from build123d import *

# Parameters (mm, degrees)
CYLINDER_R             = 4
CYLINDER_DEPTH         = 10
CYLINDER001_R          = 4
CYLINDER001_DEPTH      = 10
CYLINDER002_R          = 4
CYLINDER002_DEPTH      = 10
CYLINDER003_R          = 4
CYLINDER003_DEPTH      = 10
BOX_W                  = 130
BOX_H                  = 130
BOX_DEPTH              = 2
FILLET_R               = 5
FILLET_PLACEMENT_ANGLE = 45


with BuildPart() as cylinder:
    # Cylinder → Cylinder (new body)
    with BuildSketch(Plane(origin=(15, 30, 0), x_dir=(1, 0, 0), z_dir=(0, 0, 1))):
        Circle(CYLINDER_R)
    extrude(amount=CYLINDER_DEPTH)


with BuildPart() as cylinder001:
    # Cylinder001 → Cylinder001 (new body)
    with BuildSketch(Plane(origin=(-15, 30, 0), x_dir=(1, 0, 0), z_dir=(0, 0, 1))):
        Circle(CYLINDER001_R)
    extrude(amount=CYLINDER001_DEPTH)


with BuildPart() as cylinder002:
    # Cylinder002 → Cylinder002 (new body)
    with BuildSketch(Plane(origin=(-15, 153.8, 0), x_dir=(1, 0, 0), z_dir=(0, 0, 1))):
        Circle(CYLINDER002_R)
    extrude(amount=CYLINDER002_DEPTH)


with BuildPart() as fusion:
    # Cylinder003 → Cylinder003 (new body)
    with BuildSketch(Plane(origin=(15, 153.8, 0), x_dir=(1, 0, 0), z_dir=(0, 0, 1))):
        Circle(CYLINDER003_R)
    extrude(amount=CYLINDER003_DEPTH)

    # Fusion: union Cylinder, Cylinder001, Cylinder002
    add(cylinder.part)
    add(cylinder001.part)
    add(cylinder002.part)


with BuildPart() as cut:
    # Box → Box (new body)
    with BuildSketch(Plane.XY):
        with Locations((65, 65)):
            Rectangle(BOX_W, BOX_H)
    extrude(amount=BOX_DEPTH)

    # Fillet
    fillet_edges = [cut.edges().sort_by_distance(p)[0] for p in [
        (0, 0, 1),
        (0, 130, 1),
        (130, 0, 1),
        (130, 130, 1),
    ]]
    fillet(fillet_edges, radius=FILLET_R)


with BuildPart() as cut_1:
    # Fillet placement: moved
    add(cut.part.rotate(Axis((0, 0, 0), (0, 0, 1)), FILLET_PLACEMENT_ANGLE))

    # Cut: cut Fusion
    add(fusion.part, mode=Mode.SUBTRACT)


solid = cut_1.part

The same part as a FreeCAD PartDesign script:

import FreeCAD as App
import Part
import Sketcher


def edges_at(feature, points):
    """Names of the edges that pass closest to the given points."""
    edges = feature.Shape.Edges
    near = lambda p: min(range(len(edges)), key=lambda i: edges[i].distToShape(Part.Vertex(*p))[0])
    return sorted({f"Edge{near(p) + 1}" for p in points})


def add_polygon(sketch, points):
    """Adds a closed chain of lines whose ends are joined by coincident constraints."""
    first, n = sketch.GeometryCount, len(points)
    for a, b in zip(points, points[1:] + points[:1]):
        sketch.addGeometry(Part.LineSegment(App.Vector(*a, 0), App.Vector(*b, 0)), False)
    for i in range(n):
        sketch.addConstraint(Sketcher.Constraint("Coincident", first + i, 2, first + (i + 1) % n, 1))

doc = App.newDocument("Part")
params = doc.addObject("Spreadsheet::Sheet", "Params")
for row, (alias, value) in enumerate([
    ("sketch1_diameter", "8 mm"),
    ("pad1_length", "10 mm"),
    ("sketch2_diameter", "8 mm"),
    ("pad2_length", "10 mm"),
    ("sketch3_diameter", "8 mm"),
    ("pad3_length", "10 mm"),
    ("sketch4_diameter", "8 mm"),
    ("pad4_length", "10 mm"),
    ("sketch5_width", "130 mm"),
    ("pad5_length", "2 mm"),
    ("fillet_radius", "5 mm"),
], start=1):
    params.set(f"A{row}", alias)
    params.set(f"B{row}", "=" + value)
    params.setAlias(f"B{row}", alias)

body = doc.addObject("PartDesign::Body", "Body")

# Sketch on XY plane
sketch1 = body.newObject("Sketcher::SketchObject", "Sketch")
sketch1.AttachmentSupport = (doc.getObject("XY_Plane"), [""])
sketch1.MapMode = "FlatFace"
sketch1.addGeometry(Part.Circle(App.Vector(15, 30, 0), App.Vector(0, 0, 1), 4), False)
sketch1.addConstraint([
    Sketcher.Constraint("Diameter", 0, 8.0),
    Sketcher.Constraint("DistanceX", -1, 1, 0, 3, 15.0),
    Sketcher.Constraint("DistanceY", -1, 1, 0, 3, 30.0),
])
sketch1.setExpression("Constraints[0]", "Params.sketch1_diameter")
pad1 = body.newObject("PartDesign::Pad", "Pad")
pad1.Profile = sketch1
pad1.setExpression("Length", "Params.pad1_length")
body2 = doc.addObject("PartDesign::Body", "Body001")

# Sketch on XY plane
sketch2 = body2.newObject("Sketcher::SketchObject", "Sketch001")
sketch2.AttachmentSupport = (doc.getObject("XY_Plane001"), [""])
sketch2.MapMode = "FlatFace"
sketch2.addGeometry(Part.Circle(App.Vector(-15, 30, 0), App.Vector(0, 0, 1), 4), False)
sketch2.addConstraint([
    Sketcher.Constraint("Diameter", 0, 8.0),
    Sketcher.Constraint("DistanceX", 0, 3, -1, 1, 15.0),
    Sketcher.Constraint("DistanceY", -1, 1, 0, 3, 30.0),
])
sketch2.setExpression("Constraints[0]", "Params.sketch2_diameter")
pad2 = body2.newObject("PartDesign::Pad", "Pad001")
pad2.Profile = sketch2
pad2.setExpression("Length", "Params.pad2_length")
body3 = doc.addObject("PartDesign::Body", "Body002")

# Sketch on XY plane
sketch3 = body3.newObject("Sketcher::SketchObject", "Sketch002")
sketch3.AttachmentSupport = (doc.getObject("XY_Plane002"), [""])
sketch3.MapMode = "FlatFace"
sketch3.addGeometry(Part.Circle(App.Vector(-15, 153.8, 0), App.Vector(0, 0, 1), 4), False)
sketch3.addConstraint([
    Sketcher.Constraint("Diameter", 0, 8.0),
    Sketcher.Constraint("DistanceX", 0, 3, -1, 1, 15.0),
    Sketcher.Constraint("DistanceY", -1, 1, 0, 3, 153.8),
])
sketch3.setExpression("Constraints[0]", "Params.sketch3_diameter")
pad3 = body3.newObject("PartDesign::Pad", "Pad002")
pad3.Profile = sketch3
pad3.setExpression("Length", "Params.pad3_length")
body4 = doc.addObject("PartDesign::Body", "Body003")
body4.AllowCompound = True

# Sketch on XY plane
sketch4 = body4.newObject("Sketcher::SketchObject", "Sketch003")
sketch4.AttachmentSupport = (doc.getObject("XY_Plane003"), [""])
sketch4.MapMode = "FlatFace"
sketch4.addGeometry(Part.Circle(App.Vector(15, 153.8, 0), App.Vector(0, 0, 1), 4), False)
sketch4.addConstraint([
    Sketcher.Constraint("Diameter", 0, 8.0),
    Sketcher.Constraint("DistanceX", -1, 1, 0, 3, 15.0),
    Sketcher.Constraint("DistanceY", -1, 1, 0, 3, 153.8),
])
sketch4.setExpression("Constraints[0]", "Params.sketch4_diameter")
pad4 = body4.newObject("PartDesign::Pad", "Pad003")
pad4.Profile = sketch4
pad4.setExpression("Length", "Params.pad4_length")
doc.recompute()

boolean = body4.newObject("PartDesign::Boolean", "Boolean")
boolean.Type = "Fuse"
boolean.addObjects([body])
doc.recompute()

boolean2 = body4.newObject("PartDesign::Boolean", "Boolean001")
boolean2.Type = "Fuse"
boolean2.addObjects([body2])
doc.recompute()

boolean3 = body4.newObject("PartDesign::Boolean", "Boolean002")
boolean3.Type = "Fuse"
boolean3.addObjects([body3])
body5 = doc.addObject("PartDesign::Body", "Body004")

# Sketch on XY plane
sketch5 = body5.newObject("Sketcher::SketchObject", "Sketch004")
sketch5.AttachmentSupport = (doc.getObject("XY_Plane004"), [""])
sketch5.MapMode = "FlatFace"
add_polygon(sketch5, [(0, 130), (0, 0), (130, 0), (130, 130)])  # lines 0-3
sketch5.addConstraint([
    Sketcher.Constraint("Vertical", 0),
    Sketcher.Constraint("Horizontal", 1),
    Sketcher.Constraint("Vertical", 2),
    Sketcher.Constraint("Horizontal", 3),
    Sketcher.Constraint("Coincident", 0, 2, -1, 1),
    Sketcher.Constraint("Equal", 3, 0),
    Sketcher.Constraint("DistanceX", 1, 1, 1, 2, 130.0),
])
sketch5.setExpression("Constraints[10]", "Params.sketch5_width")
pad5 = body5.newObject("PartDesign::Pad", "Pad004")
pad5.Profile = sketch5
pad5.setExpression("Length", "Params.pad5_length")
doc.recompute()

fillet = body5.newObject("PartDesign::Fillet", "Fillet")
fillet.Base = (pad5, edges_at(pad5, [
    (0, 0, 1),
    (0, 130, 1),
    (130, 0, 1),
    (130, 130, 1),
]))
fillet.setExpression("Radius", "Params.fillet_radius")
body6 = doc.addObject("PartDesign::Body", "Body005")
doc.recompute()

body5.Placement = App.Placement(App.Vector(0, 0, 0), App.Rotation(App.Vector(0, 0, 1), 45))
boolean4 = body6.newObject("PartDesign::Boolean", "Boolean003")
boolean4.Type = "Fuse"
boolean4.addObjects([body5])
doc.recompute()

boolean5 = body6.newObject("PartDesign::Boolean", "Boolean004")
boolean5.Type = "Cut"
boolean5.addObjects([body4])

doc.recompute()
